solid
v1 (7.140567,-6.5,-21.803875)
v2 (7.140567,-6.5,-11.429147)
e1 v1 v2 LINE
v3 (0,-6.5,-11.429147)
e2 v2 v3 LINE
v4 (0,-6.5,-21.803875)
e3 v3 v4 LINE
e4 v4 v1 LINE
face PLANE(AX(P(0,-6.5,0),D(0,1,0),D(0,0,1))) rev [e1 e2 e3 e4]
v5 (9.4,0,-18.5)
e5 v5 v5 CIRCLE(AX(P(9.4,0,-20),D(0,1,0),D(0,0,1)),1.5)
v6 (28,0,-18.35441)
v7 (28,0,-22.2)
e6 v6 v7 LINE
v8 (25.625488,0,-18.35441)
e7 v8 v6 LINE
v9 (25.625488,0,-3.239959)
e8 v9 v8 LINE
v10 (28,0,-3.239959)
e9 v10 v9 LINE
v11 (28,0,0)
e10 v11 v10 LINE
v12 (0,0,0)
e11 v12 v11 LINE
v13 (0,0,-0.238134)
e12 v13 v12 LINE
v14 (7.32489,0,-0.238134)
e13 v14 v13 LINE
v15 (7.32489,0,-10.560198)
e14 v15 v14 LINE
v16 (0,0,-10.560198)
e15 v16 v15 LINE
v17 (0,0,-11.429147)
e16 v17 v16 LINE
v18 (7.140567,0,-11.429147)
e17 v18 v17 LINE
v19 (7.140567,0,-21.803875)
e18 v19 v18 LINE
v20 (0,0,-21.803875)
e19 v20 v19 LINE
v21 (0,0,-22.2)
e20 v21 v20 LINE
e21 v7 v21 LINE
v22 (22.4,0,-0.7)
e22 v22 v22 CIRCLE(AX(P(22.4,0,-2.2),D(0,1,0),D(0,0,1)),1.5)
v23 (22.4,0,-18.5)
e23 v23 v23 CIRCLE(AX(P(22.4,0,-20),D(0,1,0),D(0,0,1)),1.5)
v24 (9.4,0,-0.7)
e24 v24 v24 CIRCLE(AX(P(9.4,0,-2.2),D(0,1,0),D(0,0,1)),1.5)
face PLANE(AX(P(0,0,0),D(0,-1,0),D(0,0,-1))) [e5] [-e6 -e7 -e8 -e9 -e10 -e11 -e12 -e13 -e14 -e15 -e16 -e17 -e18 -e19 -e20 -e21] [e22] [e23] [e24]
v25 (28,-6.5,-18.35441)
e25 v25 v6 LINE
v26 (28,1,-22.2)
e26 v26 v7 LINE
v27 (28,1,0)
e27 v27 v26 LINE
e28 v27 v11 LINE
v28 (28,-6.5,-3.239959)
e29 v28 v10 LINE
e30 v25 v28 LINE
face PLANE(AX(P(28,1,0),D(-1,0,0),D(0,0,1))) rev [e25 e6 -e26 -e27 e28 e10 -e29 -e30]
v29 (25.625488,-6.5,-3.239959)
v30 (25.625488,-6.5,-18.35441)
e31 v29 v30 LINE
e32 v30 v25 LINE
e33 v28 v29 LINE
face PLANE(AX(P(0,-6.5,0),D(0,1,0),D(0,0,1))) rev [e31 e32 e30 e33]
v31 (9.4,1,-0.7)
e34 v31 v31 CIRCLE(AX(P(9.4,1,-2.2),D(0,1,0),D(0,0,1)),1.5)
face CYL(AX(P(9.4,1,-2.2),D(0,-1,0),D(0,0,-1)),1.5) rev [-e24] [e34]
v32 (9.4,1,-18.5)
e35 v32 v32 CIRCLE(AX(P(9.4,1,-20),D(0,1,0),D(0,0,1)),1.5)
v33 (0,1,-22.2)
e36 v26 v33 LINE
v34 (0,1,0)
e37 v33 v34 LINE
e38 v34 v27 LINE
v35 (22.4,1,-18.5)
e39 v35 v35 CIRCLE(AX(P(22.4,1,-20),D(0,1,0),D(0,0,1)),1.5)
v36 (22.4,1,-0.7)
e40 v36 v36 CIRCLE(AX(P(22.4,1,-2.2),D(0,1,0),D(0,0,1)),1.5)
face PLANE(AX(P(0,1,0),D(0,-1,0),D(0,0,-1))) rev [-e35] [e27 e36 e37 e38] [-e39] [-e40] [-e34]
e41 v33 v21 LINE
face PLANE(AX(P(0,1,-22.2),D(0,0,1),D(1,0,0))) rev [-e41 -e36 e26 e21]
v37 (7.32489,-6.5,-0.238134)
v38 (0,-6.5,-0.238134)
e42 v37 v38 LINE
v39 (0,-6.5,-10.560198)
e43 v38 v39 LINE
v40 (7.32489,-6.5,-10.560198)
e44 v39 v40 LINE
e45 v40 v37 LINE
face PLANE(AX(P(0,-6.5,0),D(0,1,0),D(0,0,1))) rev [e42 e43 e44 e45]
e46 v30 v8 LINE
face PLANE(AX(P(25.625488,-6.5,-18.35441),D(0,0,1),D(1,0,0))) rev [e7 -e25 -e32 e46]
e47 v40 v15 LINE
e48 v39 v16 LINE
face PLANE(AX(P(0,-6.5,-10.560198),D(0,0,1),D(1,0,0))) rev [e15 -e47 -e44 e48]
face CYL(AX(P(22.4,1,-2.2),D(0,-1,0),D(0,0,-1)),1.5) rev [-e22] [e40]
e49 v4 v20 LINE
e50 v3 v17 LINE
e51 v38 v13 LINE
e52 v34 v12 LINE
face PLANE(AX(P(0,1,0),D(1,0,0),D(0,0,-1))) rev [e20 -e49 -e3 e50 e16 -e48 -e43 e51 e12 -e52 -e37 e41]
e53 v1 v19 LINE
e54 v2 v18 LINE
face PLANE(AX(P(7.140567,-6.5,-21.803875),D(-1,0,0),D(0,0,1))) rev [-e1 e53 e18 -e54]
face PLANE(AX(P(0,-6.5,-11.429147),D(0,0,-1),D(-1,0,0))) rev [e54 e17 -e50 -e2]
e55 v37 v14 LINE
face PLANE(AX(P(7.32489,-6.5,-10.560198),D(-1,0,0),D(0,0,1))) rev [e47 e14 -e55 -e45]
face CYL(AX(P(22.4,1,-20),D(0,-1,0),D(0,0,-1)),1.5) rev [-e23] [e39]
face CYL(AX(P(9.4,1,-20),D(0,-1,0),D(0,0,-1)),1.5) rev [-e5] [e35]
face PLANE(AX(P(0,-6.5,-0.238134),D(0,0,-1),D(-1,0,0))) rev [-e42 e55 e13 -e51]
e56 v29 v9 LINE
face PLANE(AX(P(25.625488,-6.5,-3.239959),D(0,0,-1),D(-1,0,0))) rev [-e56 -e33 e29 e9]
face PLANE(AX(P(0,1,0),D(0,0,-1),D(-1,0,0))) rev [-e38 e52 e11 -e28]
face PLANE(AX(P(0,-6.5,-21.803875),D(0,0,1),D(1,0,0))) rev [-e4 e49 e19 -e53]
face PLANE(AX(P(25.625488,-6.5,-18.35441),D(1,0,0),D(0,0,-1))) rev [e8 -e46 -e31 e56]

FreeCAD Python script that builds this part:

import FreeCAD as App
import Part
import Sketcher

V = App.Vector

doc = App.newDocument("Part")
body = doc.addObject("PartDesign::Body", "Body")

# Sketch on XZ plane
sketch1 = body.newObject("Sketcher::SketchObject", "Sketch")
sketch1.AttachmentSupport = (doc.getObject("XZ_Plane"), [""])
sketch1.MapMode = "FlatFace"
sketch1.addGeometry([
    Part.LineSegment(V(0, -22.2, 0), V(0, 0, 0)),  # 0
    Part.LineSegment(V(0, 0, 0), V(28, 0, 0)),  # 1
    Part.LineSegment(V(28, 0, 0), V(28, -22.2, 0)),  # 2
    Part.LineSegment(V(28, -22.2, 0), V(0, -22.2, 0)),  # 3
    Part.Circle(V(9.4, -2.2, 0), V(0, 0, 1), 1.5),  # 4
    Part.Circle(V(22.4, -2.2, 0), V(0, 0, 1), 1.5),  # 5
    Part.Circle(V(9.4, -20, 0), V(0, 0, 1), 1.5),  # 6
    Part.Circle(V(22.4, -20, 0), V(0, 0, 1), 1.5),  # 7
], False)
sketch1.addConstraint([
    Sketcher.Constraint("Coincident", 0, 2, 1, 1),
    Sketcher.Constraint("Coincident", 1, 2, 2, 1),
    Sketcher.Constraint("Coincident", 2, 2, 3, 1),
    Sketcher.Constraint("Coincident", 3, 2, 0, 1),
    Sketcher.Constraint("Vertical", 0),
    Sketcher.Constraint("Horizontal", 1),
    Sketcher.Constraint("Vertical", 2),
    Sketcher.Constraint("Horizontal", 3),
    Sketcher.Constraint("Coincident", 0, 2, -1, 1),
    Sketcher.Constraint("Equal", 4, 5),
    Sketcher.Constraint("Equal", 5, 6),
    Sketcher.Constraint("Equal", 6, 7),
    Sketcher.Constraint("Horizontal", 4, 3, 5, 3),
    Sketcher.Constraint("Horizontal", 6, 3, 7, 3),
    Sketcher.Constraint("Vertical", 4, 3, 6, 3),
    Sketcher.Constraint("Vertical", 5, 3, 7, 3),
    Sketcher.Constraint("Diameter", 4, 3.0),
    Sketcher.Constraint("DistanceX", 1, 1, 1, 2, 28.0),
    Sketcher.Constraint("DistanceY", 0, 1, 0, 2, 22.2),
    Sketcher.Constraint("DistanceY", 6, 3, -1, 1, 20.0),
    Sketcher.Constraint("DistanceX", 4, 3, 5, 3, 13.0),
    Sketcher.Constraint("DistanceY", 2, 2, 5, 3, 20.0),
    Sketcher.Constraint("DistanceX", -1, 1, 4, 3, 9.4),
])
pad1 = body.newObject("PartDesign::Pad", "Pad")
pad1.Profile = sketch1
pad1.Length = 1
pad1.Reversed = True

# Sketch on XZ plane
sketch2 = body.newObject("Sketcher::SketchObject", "Sketch001")
sketch2.AttachmentSupport = (doc.getObject("XZ_Plane"), [""])
sketch2.MapMode = "FlatFace"
sketch2.addGeometry([
    Part.LineSegment(V(0, -11.4, 0), V(0, -21.8, 0)),  # 0
    Part.LineSegment(V(0, -21.8, 0), V(7.1, -21.8, 0)),  # 1
    Part.LineSegment(V(7.1, -21.8, 0), V(7.1, -11.4, 0)),  # 2
    Part.LineSegment(V(7.1, -11.4, 0), V(0, -11.4, 0)),  # 3
    Part.LineSegment(V(0, -0.2, 0), V(0, -10.6, 0)),  # 4
    Part.LineSegment(V(0, -10.6, 0), V(7.3, -10.6, 0)),  # 5
    Part.LineSegment(V(7.3, -10.6, 0), V(7.3, -0.2, 0)),  # 6
    Part.LineSegment(V(7.3, -0.2, 0), V(0, -0.2, 0)),  # 7
    Part.LineSegment(V(25.6, -3.2, 0), V(25.6, -18.4, 0)),  # 8
    Part.LineSegment(V(25.6, -18.4, 0), V(28, -18.4, 0)),  # 9
    Part.LineSegment(V(28, -18.4, 0), V(28, -3.2, 0)),  # 10
    Part.LineSegment(V(28, -3.2, 0), V(25.6, -3.2, 0)),  # 11
], False)
sketch2.addConstraint([
    Sketcher.Constraint("Coincident", 0, 2, 1, 1),
    Sketcher.Constraint("Coincident", 1, 2, 2, 1),
    Sketcher.Constraint("Coincident", 2, 2, 3, 1),
    Sketcher.Constraint("Coincident", 3, 2, 0, 1),
    Sketcher.Constraint("Coincident", 4, 2, 5, 1),
    Sketcher.Constraint("Coincident", 5, 2, 6, 1),
    Sketcher.Constraint("Coincident", 6, 2, 7, 1),
    Sketcher.Constraint("Coincident", 7, 2, 4, 1),
    Sketcher.Constraint("Coincident", 8, 2, 9, 1),
    Sketcher.Constraint("Coincident", 9, 2, 10, 1),
    Sketcher.Constraint("Coincident", 10, 2, 11, 1),
    Sketcher.Constraint("Coincident", 11, 2, 8, 1),
    Sketcher.Constraint("Vertical", 0),
    Sketcher.Constraint("Horizontal", 1),
    Sketcher.Constraint("Vertical", 2),
    Sketcher.Constraint("Horizontal", 3),
    Sketcher.Constraint("Vertical", 4),
    Sketcher.Constraint("Horizontal", 5),
    Sketcher.Constraint("Vertical", 6),
    Sketcher.Constraint("Horizontal", 7),
    Sketcher.Constraint("Vertical", 8),
    Sketcher.Constraint("Horizontal", 9),
    Sketcher.Constraint("Vertical", 10),
    Sketcher.Constraint("Horizontal", 11),
    Sketcher.Constraint("PointOnObject", 0, 2, -2),
    Sketcher.Constraint("PointOnObject", 4, 2, -2),
    Sketcher.Constraint("DistanceX", -1, 1, 9, 2, 28.0),
    Sketcher.Constraint("DistanceX", 5, 1, 5, 2, 7.32489),
    Sketcher.Constraint("DistanceY", 8, 2, 8, 1, 15.114451),
    Sketcher.Constraint("DistanceY", 4, 2, -1, 1, 10.560198),
    Sketcher.Constraint("DistanceX", 1, 1, 1, 2, 7.140567),
    Sketcher.Constraint("DistanceX", 9, 1, 9, 2, 2.374512),
    Sketcher.Constraint("DistanceY", 0, 2, 0, 1, 10.374727),
    Sketcher.Constraint("DistanceY", 4, 2, 4, 1, 10.322064),
    Sketcher.Constraint("DistanceY", 8, 2, -1, 1, 18.35441),
    Sketcher.Constraint("DistanceY", 3, 2, 4, 2, 0.868949),
])
pad2 = body.newObject("PartDesign::Pad", "Pad001")
pad2.Profile = sketch2
pad2.Length = 6.5

doc.recompute()
